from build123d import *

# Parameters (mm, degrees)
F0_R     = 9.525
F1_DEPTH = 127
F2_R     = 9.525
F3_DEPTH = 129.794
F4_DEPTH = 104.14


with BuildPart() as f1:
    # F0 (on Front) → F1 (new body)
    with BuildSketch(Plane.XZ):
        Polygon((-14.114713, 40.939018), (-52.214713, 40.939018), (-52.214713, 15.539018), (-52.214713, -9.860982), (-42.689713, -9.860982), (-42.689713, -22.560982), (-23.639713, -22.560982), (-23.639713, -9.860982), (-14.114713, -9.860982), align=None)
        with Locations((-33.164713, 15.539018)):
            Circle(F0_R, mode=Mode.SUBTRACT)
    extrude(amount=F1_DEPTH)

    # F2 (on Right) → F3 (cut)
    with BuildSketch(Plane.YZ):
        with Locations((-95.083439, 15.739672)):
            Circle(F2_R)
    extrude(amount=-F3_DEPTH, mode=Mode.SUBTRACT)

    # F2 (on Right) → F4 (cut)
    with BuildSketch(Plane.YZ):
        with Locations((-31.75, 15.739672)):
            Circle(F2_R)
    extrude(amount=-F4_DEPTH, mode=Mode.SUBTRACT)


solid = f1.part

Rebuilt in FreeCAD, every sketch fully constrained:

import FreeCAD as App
import Part
import Sketcher

V = App.Vector
Q = App.Units.Quantity


def add_polygon(sketch, points):
    """Adds a closed chain of lines whose ends are joined by coincident constraints."""
    first, n = sketch.GeometryCount, len(points)
    for a, b in zip(points, points[1:] + points[:1]):
        sketch.addGeometry(Part.LineSegment(App.Vector(*a, 0), App.Vector(*b, 0)), False)
    for i in range(n):
        sketch.addConstraint(Sketcher.Constraint("Coincident", first + i, 2, first + (i + 1) % n, 1))

doc = App.newDocument("Part")
body = doc.addObject("PartDesign::Body", "Body")

# Sketch on XZ plane
sketch1 = doc.addObject("Sketcher::SketchObject", "Sketch")
body.addObject(sketch1)
sketch1.AttachmentSupport = (doc.XZ_Plane, [""])
sketch1.MapMode = "FlatFace"
add_polygon(sketch1, [(-14.114713, 40.939018), (-52.214713, 40.939018), (-52.214713, -9.860982), (-42.689713, -9.860982), (-42.689713, -22.560982), (-23.639713, -22.560982), (-23.639713, -9.860982), (-14.114713, -9.860982)])  # lines 0-7
sketch1.addGeometry(Part.Circle(V(-33.164713, 15.539018, 0), V(0, 0, 1), 9.525), False)  # 8
sketch1.addConstraint([
    Sketcher.Constraint("Horizontal", 0),
    Sketcher.Constraint("Vertical", 1),
    Sketcher.Constraint("Horizontal", 2),
    Sketcher.Constraint("Vertical", 3),
    Sketcher.Constraint("Horizontal", 4),
    Sketcher.Constraint("Vertical", 5),
    Sketcher.Constraint("Horizontal", 6),
    Sketcher.Constraint("Vertical", 7),
    Sketcher.Constraint("Horizontal", 2, 2, 5, 2),
    Sketcher.Constraint("Equal", 2, 6),
    Sketcher.Constraint("Diameter", 8, Q("0.75 in")),
    Sketcher.Constraint("DistanceY", 1, 2, 1, 1, Q("2 in")),
    Sketcher.Constraint("DistanceX", 0, 2, 0, 1, Q("1.5 in")),
    Sketcher.Constraint("DistanceY", 3, 2, 3, 1, Q("0.5 in")),
    Sketcher.Constraint("DistanceY", 8, 3, 0, 2, Q("1 in")),
    Sketcher.Constraint("DistanceX", 4, 1, 4, 2, Q("0.75 in")),
    Sketcher.Constraint("DistanceX", 0, 2, 8, 3, Q("0.75 in")),
    Sketcher.Constraint("DistanceY", 3, 2, -1, 1, 22.560982),
    Sketcher.Constraint("DistanceX", 8, 3, -1, 1, 33.164713),
])
pad1 = doc.addObject("PartDesign::Pad", "Pad")
body.addObject(pad1)
pad1.Profile = sketch1
pad1.Length = Q("5 in")

# Sketch on YZ plane
sketch2 = doc.addObject("Sketcher::SketchObject", "Sketch001")
body.addObject(sketch2)
sketch2.AttachmentSupport = (doc.YZ_Plane, [""])
sketch2.MapMode = "FlatFace"
sketch2.addGeometry(Part.Circle(V(-95.083439, 15.739672, 0), V(0, 0, 1), 9.525), False)
sketch2.addConstraint([
    Sketcher.Constraint("Diameter", 0, Q("0.75 in")),
    Sketcher.Constraint("DistanceX", 0, 3, -1, 1, 95.083439),
    Sketcher.Constraint("DistanceY", -1, 1, 0, 3, 15.739672),
])
pocket1 = doc.addObject("PartDesign::Pocket", "Pocket")
body.addObject(pocket1)
pocket1.Profile = sketch2
pocket1.Length = Q("5.11 in")

# Sketch on YZ plane
sketch3 = doc.addObject("Sketcher::SketchObject", "Sketch002")
body.addObject(sketch3)
sketch3.AttachmentSupport = (doc.YZ_Plane, [""])
sketch3.MapMode = "FlatFace"
sketch3.addGeometry(Part.Circle(V(-31.75, 15.739672, 0), V(0, 0, 1), 9.525), False)
sketch3.addConstraint([
    Sketcher.Constraint("Diameter", 0, Q("0.75 in")),
    Sketcher.Constraint("DistanceX", 0, 3, -1, 1, Q("1.25 in")),
    Sketcher.Constraint("DistanceY", -1, 1, 0, 3, 15.739672),
])
pocket2 = doc.addObject("PartDesign::Pocket", "Pocket001")
body.addObject(pocket2)
pocket2.Profile = sketch3
pocket2.Length = Q("4.1 in")

doc.recompute()
